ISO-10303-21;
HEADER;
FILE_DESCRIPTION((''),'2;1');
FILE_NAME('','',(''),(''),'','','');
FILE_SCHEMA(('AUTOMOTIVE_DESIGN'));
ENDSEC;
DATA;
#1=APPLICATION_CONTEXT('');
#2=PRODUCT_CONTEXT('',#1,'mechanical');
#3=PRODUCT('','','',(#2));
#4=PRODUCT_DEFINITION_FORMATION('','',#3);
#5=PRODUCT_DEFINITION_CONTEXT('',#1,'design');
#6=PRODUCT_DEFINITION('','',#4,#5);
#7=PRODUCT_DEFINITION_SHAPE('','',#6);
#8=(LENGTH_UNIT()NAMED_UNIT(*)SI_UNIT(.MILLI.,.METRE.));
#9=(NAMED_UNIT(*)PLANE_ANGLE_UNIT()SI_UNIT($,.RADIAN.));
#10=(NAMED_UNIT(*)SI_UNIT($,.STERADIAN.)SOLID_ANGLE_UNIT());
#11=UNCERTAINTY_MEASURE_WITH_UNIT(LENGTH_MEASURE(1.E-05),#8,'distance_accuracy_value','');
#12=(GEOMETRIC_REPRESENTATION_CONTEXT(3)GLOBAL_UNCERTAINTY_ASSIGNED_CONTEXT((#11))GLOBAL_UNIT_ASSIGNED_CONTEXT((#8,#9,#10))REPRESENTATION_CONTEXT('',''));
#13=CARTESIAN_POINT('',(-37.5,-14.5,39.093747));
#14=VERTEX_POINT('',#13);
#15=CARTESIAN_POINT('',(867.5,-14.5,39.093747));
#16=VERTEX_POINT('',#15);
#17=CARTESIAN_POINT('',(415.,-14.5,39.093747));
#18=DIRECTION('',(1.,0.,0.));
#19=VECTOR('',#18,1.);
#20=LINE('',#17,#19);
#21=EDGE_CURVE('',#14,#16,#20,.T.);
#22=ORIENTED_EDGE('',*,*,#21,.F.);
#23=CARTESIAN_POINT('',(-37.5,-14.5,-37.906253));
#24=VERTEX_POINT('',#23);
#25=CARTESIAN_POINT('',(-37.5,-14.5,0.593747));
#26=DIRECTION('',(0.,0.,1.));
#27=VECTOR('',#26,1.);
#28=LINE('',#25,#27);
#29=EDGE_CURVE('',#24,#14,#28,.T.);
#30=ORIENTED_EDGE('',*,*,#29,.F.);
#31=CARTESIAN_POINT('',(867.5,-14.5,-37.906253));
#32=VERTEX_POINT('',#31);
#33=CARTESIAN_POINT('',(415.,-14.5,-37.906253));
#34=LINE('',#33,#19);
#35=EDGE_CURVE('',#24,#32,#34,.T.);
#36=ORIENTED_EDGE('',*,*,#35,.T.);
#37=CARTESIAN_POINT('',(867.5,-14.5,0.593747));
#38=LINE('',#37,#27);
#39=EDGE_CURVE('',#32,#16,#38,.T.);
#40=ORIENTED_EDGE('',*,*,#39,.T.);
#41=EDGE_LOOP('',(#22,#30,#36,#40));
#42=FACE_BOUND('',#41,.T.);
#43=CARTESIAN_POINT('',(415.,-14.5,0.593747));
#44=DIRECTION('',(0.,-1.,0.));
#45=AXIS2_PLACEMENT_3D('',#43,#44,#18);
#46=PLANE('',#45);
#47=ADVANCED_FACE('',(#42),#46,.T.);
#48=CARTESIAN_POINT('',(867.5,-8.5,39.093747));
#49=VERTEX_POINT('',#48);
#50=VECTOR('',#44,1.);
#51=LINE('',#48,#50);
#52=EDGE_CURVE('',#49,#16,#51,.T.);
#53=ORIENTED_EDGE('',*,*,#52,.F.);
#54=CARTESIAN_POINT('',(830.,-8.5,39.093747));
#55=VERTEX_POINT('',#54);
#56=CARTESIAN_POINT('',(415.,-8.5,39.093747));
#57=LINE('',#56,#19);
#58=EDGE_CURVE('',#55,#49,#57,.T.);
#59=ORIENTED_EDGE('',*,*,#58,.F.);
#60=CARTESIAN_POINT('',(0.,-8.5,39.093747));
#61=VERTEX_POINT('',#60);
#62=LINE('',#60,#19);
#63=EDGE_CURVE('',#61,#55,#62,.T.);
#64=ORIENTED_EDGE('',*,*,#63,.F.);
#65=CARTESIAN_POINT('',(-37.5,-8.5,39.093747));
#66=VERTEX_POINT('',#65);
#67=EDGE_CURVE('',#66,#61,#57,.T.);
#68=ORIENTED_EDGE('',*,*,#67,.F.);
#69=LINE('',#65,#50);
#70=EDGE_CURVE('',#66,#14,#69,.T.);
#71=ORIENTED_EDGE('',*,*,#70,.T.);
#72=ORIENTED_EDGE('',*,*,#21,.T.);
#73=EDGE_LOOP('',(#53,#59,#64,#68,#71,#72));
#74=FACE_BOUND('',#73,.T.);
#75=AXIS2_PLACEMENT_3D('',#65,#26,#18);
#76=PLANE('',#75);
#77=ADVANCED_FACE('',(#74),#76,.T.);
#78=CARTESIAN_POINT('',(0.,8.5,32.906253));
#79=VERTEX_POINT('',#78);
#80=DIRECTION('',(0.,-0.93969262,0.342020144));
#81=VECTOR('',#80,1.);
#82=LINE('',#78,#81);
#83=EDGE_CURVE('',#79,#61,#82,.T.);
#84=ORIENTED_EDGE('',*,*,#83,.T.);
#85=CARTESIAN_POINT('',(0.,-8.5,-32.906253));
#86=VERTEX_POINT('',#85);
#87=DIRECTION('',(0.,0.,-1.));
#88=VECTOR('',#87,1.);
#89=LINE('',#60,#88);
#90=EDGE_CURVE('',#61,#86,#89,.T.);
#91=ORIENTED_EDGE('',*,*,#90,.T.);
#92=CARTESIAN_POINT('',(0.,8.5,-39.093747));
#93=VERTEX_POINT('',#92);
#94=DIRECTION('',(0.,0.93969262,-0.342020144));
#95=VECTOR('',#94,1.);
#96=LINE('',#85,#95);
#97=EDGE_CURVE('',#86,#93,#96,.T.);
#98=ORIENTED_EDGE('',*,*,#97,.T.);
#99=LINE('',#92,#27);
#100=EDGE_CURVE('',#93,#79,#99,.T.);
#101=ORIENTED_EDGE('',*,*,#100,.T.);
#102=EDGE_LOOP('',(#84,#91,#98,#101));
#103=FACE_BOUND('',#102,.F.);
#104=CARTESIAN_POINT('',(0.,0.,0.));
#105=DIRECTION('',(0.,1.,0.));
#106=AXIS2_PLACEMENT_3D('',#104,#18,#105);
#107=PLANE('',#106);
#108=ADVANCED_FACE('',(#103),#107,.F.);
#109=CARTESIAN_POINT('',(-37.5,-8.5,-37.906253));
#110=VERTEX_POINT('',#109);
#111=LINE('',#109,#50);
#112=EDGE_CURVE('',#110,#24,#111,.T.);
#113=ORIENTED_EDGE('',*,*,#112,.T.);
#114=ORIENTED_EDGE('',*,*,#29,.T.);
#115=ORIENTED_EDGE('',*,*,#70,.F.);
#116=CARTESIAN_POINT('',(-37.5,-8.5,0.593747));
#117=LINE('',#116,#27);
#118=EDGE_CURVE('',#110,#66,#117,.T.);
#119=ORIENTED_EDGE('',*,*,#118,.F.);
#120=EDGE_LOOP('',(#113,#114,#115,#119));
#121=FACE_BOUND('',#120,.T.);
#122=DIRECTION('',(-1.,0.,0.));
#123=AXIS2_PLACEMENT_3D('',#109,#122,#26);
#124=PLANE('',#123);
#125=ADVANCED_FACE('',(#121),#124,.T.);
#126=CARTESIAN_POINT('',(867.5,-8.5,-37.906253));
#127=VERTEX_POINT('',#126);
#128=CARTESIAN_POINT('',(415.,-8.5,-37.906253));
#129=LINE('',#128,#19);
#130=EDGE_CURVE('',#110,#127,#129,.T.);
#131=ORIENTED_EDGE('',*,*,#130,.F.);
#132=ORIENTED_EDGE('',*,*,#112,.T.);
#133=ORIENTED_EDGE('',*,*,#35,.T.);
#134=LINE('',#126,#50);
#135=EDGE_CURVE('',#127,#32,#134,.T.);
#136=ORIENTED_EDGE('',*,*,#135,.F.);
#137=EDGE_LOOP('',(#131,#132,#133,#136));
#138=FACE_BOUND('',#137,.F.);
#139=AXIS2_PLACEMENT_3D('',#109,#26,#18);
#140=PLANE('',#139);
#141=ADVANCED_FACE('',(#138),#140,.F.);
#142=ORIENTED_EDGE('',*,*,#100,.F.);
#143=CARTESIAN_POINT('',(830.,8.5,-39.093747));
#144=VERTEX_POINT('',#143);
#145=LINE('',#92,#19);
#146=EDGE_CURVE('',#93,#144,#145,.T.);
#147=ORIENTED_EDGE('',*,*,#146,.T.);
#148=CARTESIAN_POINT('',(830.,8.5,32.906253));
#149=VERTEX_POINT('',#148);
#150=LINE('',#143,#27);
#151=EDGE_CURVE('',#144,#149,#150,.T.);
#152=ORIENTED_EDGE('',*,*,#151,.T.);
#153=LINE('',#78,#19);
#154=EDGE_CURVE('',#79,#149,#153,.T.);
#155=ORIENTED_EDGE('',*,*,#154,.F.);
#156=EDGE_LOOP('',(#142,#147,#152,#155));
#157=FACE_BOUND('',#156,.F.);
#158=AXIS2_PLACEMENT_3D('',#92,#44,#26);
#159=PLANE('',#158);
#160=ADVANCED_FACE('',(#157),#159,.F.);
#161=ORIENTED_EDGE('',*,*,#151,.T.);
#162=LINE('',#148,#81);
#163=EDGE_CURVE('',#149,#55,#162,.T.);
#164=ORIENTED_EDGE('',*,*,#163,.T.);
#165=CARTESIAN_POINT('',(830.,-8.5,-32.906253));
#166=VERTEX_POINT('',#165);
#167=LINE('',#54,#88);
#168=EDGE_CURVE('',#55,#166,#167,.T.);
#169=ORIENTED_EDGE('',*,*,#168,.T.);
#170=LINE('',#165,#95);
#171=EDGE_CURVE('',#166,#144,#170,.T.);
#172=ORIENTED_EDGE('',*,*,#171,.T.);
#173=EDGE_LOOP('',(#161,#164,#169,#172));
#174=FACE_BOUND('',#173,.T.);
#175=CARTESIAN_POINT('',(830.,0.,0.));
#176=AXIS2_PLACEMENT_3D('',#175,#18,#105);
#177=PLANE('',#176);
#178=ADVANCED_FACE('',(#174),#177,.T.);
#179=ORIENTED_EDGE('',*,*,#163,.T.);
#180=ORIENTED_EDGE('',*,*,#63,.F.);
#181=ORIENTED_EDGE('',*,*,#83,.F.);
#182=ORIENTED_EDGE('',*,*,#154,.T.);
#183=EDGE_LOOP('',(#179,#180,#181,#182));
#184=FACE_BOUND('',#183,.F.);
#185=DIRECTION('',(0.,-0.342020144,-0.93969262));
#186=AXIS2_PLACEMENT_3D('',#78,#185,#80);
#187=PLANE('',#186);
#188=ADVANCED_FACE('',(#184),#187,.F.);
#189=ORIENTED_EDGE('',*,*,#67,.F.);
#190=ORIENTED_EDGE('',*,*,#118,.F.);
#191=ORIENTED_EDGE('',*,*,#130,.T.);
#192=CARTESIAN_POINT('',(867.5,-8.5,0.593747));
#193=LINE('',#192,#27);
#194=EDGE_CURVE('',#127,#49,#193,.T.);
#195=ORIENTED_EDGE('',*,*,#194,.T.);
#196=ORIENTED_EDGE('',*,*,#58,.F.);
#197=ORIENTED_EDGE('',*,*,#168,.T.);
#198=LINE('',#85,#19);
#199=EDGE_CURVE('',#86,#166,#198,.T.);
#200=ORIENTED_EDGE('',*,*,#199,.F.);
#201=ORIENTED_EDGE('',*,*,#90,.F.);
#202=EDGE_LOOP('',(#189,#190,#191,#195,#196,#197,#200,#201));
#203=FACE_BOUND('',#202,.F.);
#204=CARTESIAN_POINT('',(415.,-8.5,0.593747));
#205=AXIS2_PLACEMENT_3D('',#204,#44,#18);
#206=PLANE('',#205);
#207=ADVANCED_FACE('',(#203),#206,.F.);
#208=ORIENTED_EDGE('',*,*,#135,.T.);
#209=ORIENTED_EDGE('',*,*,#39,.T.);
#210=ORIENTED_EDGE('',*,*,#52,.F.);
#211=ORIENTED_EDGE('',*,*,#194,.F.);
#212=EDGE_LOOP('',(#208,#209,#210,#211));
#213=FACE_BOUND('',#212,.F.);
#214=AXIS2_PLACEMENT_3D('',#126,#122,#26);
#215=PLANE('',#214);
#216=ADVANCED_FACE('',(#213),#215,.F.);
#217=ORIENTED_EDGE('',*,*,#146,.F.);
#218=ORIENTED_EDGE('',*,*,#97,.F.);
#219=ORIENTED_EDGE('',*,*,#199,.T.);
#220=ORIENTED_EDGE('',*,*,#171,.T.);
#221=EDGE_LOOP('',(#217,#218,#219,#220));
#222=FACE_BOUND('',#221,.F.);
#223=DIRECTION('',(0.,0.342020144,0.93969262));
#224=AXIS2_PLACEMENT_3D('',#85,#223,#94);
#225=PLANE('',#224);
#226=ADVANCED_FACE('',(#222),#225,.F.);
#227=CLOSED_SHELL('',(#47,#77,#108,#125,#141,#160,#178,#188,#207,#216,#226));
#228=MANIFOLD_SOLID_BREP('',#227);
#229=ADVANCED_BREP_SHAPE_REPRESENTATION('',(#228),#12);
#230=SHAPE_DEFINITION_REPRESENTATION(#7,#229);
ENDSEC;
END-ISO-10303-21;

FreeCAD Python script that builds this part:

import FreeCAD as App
import Part
import Sketcher
Q = App.Units.Quantity

doc = App.newDocument("Part")
body = doc.addObject("PartDesign::Body", "Body")

sketch1 = doc.addObject("Sketcher::SketchObject", "Sketch")
body.addObject(sketch1)
sketch1.AttachmentSupport = (doc.YZ_Plane, [""])
sketch1.MapMode = "FlatFace"
sketch1.addGeometry([
    Part.LineSegment(App.Vector(8, 33, 0), App.Vector(-8, 39, 0)),
    Part.LineSegment(App.Vector(-8, 39, 0), App.Vector(-8, -33, 0)),
    Part.LineSegment(App.Vector(-8, -33, 0), App.Vector(8, -39, 0)),
    Part.LineSegment(App.Vector(8, -39, 0), App.Vector(8, 33, 0)),
], False)
sketch1.addConstraint([
    Sketcher.Constraint("Coincident", 0, 2, 1, 1),
    Sketcher.Constraint("Coincident", 1, 2, 2, 1),
    Sketcher.Constraint("Coincident", 2, 2, 3, 1),
    Sketcher.Constraint("Coincident", 3, 2, 0, 1),
    Sketcher.Constraint("Vertical", 1),
    Sketcher.Constraint("Vertical", 3),
    Sketcher.Constraint("Symmetric", 0, 2, 2, 2, -1, 1),
    Sketcher.Constraint("Parallel", 0, 2),
    Sketcher.Constraint("DistanceY", 1, 2, 1, 1, 72.0),
    Sketcher.Constraint("Angle", 0, Q("160 deg")),
    Sketcher.Constraint("DistanceX", 1, 2, 2, 2, 17.0),
])
pad1 = doc.addObject("PartDesign::Pad", "Pad")
body.addObject(pad1)
pad1.Profile = sketch1
pad1.Length = 830

sketch2 = doc.addObject("Sketcher::SketchObject", "Sketch001")
body.addObject(sketch2)
sketch2.AttachmentSupport = (doc.XZ_Plane, [""])
sketch2.MapMode = "FlatFace"
sketch2.AttachmentOffset = App.Placement(App.Vector(0, 0, 8.5), App.Rotation())
sketch2.addGeometry([
    Part.LineSegment(App.Vector(-38, 39, 0), App.Vector(-38, -38, 0)),
    Part.LineSegment(App.Vector(-38, -38, 0), App.Vector(868, -38, 0)),
    Part.LineSegment(App.Vector(868, -38, 0), App.Vector(868, 39, 0)),
    Part.LineSegment(App.Vector(868, 39, 0), App.Vector(-38, 39, 0)),
], False)
sketch2.addConstraint([
    Sketcher.Constraint("Coincident", 0, 2, 1, 1),
    Sketcher.Constraint("Coincident", 1, 2, 2, 1),
    Sketcher.Constraint("Coincident", 2, 2, 3, 1),
    Sketcher.Constraint("Coincident", 3, 2, 0, 1),
    Sketcher.Constraint("Vertical", 0),
    Sketcher.Constraint("Horizontal", 1),
    Sketcher.Constraint("Vertical", 2),
    Sketcher.Constraint("Horizontal", 3),
    Sketcher.Constraint("DistanceX", 1, 1, 1, 2, 905.0),
    Sketcher.Constraint("DistanceY", 0, 2, 0, 1, 77.0),
    Sketcher.Constraint("DistanceX", 0, 2, -1, 1, 37.5),
    Sketcher.Constraint("DistanceY", 0, 2, -1, 1, 37.906253),
])
pad2 = doc.addObject("PartDesign::Pad", "Pad001")
body.addObject(pad2)
pad2.Profile = sketch2
pad2.Length = 6

doc.recompute()
